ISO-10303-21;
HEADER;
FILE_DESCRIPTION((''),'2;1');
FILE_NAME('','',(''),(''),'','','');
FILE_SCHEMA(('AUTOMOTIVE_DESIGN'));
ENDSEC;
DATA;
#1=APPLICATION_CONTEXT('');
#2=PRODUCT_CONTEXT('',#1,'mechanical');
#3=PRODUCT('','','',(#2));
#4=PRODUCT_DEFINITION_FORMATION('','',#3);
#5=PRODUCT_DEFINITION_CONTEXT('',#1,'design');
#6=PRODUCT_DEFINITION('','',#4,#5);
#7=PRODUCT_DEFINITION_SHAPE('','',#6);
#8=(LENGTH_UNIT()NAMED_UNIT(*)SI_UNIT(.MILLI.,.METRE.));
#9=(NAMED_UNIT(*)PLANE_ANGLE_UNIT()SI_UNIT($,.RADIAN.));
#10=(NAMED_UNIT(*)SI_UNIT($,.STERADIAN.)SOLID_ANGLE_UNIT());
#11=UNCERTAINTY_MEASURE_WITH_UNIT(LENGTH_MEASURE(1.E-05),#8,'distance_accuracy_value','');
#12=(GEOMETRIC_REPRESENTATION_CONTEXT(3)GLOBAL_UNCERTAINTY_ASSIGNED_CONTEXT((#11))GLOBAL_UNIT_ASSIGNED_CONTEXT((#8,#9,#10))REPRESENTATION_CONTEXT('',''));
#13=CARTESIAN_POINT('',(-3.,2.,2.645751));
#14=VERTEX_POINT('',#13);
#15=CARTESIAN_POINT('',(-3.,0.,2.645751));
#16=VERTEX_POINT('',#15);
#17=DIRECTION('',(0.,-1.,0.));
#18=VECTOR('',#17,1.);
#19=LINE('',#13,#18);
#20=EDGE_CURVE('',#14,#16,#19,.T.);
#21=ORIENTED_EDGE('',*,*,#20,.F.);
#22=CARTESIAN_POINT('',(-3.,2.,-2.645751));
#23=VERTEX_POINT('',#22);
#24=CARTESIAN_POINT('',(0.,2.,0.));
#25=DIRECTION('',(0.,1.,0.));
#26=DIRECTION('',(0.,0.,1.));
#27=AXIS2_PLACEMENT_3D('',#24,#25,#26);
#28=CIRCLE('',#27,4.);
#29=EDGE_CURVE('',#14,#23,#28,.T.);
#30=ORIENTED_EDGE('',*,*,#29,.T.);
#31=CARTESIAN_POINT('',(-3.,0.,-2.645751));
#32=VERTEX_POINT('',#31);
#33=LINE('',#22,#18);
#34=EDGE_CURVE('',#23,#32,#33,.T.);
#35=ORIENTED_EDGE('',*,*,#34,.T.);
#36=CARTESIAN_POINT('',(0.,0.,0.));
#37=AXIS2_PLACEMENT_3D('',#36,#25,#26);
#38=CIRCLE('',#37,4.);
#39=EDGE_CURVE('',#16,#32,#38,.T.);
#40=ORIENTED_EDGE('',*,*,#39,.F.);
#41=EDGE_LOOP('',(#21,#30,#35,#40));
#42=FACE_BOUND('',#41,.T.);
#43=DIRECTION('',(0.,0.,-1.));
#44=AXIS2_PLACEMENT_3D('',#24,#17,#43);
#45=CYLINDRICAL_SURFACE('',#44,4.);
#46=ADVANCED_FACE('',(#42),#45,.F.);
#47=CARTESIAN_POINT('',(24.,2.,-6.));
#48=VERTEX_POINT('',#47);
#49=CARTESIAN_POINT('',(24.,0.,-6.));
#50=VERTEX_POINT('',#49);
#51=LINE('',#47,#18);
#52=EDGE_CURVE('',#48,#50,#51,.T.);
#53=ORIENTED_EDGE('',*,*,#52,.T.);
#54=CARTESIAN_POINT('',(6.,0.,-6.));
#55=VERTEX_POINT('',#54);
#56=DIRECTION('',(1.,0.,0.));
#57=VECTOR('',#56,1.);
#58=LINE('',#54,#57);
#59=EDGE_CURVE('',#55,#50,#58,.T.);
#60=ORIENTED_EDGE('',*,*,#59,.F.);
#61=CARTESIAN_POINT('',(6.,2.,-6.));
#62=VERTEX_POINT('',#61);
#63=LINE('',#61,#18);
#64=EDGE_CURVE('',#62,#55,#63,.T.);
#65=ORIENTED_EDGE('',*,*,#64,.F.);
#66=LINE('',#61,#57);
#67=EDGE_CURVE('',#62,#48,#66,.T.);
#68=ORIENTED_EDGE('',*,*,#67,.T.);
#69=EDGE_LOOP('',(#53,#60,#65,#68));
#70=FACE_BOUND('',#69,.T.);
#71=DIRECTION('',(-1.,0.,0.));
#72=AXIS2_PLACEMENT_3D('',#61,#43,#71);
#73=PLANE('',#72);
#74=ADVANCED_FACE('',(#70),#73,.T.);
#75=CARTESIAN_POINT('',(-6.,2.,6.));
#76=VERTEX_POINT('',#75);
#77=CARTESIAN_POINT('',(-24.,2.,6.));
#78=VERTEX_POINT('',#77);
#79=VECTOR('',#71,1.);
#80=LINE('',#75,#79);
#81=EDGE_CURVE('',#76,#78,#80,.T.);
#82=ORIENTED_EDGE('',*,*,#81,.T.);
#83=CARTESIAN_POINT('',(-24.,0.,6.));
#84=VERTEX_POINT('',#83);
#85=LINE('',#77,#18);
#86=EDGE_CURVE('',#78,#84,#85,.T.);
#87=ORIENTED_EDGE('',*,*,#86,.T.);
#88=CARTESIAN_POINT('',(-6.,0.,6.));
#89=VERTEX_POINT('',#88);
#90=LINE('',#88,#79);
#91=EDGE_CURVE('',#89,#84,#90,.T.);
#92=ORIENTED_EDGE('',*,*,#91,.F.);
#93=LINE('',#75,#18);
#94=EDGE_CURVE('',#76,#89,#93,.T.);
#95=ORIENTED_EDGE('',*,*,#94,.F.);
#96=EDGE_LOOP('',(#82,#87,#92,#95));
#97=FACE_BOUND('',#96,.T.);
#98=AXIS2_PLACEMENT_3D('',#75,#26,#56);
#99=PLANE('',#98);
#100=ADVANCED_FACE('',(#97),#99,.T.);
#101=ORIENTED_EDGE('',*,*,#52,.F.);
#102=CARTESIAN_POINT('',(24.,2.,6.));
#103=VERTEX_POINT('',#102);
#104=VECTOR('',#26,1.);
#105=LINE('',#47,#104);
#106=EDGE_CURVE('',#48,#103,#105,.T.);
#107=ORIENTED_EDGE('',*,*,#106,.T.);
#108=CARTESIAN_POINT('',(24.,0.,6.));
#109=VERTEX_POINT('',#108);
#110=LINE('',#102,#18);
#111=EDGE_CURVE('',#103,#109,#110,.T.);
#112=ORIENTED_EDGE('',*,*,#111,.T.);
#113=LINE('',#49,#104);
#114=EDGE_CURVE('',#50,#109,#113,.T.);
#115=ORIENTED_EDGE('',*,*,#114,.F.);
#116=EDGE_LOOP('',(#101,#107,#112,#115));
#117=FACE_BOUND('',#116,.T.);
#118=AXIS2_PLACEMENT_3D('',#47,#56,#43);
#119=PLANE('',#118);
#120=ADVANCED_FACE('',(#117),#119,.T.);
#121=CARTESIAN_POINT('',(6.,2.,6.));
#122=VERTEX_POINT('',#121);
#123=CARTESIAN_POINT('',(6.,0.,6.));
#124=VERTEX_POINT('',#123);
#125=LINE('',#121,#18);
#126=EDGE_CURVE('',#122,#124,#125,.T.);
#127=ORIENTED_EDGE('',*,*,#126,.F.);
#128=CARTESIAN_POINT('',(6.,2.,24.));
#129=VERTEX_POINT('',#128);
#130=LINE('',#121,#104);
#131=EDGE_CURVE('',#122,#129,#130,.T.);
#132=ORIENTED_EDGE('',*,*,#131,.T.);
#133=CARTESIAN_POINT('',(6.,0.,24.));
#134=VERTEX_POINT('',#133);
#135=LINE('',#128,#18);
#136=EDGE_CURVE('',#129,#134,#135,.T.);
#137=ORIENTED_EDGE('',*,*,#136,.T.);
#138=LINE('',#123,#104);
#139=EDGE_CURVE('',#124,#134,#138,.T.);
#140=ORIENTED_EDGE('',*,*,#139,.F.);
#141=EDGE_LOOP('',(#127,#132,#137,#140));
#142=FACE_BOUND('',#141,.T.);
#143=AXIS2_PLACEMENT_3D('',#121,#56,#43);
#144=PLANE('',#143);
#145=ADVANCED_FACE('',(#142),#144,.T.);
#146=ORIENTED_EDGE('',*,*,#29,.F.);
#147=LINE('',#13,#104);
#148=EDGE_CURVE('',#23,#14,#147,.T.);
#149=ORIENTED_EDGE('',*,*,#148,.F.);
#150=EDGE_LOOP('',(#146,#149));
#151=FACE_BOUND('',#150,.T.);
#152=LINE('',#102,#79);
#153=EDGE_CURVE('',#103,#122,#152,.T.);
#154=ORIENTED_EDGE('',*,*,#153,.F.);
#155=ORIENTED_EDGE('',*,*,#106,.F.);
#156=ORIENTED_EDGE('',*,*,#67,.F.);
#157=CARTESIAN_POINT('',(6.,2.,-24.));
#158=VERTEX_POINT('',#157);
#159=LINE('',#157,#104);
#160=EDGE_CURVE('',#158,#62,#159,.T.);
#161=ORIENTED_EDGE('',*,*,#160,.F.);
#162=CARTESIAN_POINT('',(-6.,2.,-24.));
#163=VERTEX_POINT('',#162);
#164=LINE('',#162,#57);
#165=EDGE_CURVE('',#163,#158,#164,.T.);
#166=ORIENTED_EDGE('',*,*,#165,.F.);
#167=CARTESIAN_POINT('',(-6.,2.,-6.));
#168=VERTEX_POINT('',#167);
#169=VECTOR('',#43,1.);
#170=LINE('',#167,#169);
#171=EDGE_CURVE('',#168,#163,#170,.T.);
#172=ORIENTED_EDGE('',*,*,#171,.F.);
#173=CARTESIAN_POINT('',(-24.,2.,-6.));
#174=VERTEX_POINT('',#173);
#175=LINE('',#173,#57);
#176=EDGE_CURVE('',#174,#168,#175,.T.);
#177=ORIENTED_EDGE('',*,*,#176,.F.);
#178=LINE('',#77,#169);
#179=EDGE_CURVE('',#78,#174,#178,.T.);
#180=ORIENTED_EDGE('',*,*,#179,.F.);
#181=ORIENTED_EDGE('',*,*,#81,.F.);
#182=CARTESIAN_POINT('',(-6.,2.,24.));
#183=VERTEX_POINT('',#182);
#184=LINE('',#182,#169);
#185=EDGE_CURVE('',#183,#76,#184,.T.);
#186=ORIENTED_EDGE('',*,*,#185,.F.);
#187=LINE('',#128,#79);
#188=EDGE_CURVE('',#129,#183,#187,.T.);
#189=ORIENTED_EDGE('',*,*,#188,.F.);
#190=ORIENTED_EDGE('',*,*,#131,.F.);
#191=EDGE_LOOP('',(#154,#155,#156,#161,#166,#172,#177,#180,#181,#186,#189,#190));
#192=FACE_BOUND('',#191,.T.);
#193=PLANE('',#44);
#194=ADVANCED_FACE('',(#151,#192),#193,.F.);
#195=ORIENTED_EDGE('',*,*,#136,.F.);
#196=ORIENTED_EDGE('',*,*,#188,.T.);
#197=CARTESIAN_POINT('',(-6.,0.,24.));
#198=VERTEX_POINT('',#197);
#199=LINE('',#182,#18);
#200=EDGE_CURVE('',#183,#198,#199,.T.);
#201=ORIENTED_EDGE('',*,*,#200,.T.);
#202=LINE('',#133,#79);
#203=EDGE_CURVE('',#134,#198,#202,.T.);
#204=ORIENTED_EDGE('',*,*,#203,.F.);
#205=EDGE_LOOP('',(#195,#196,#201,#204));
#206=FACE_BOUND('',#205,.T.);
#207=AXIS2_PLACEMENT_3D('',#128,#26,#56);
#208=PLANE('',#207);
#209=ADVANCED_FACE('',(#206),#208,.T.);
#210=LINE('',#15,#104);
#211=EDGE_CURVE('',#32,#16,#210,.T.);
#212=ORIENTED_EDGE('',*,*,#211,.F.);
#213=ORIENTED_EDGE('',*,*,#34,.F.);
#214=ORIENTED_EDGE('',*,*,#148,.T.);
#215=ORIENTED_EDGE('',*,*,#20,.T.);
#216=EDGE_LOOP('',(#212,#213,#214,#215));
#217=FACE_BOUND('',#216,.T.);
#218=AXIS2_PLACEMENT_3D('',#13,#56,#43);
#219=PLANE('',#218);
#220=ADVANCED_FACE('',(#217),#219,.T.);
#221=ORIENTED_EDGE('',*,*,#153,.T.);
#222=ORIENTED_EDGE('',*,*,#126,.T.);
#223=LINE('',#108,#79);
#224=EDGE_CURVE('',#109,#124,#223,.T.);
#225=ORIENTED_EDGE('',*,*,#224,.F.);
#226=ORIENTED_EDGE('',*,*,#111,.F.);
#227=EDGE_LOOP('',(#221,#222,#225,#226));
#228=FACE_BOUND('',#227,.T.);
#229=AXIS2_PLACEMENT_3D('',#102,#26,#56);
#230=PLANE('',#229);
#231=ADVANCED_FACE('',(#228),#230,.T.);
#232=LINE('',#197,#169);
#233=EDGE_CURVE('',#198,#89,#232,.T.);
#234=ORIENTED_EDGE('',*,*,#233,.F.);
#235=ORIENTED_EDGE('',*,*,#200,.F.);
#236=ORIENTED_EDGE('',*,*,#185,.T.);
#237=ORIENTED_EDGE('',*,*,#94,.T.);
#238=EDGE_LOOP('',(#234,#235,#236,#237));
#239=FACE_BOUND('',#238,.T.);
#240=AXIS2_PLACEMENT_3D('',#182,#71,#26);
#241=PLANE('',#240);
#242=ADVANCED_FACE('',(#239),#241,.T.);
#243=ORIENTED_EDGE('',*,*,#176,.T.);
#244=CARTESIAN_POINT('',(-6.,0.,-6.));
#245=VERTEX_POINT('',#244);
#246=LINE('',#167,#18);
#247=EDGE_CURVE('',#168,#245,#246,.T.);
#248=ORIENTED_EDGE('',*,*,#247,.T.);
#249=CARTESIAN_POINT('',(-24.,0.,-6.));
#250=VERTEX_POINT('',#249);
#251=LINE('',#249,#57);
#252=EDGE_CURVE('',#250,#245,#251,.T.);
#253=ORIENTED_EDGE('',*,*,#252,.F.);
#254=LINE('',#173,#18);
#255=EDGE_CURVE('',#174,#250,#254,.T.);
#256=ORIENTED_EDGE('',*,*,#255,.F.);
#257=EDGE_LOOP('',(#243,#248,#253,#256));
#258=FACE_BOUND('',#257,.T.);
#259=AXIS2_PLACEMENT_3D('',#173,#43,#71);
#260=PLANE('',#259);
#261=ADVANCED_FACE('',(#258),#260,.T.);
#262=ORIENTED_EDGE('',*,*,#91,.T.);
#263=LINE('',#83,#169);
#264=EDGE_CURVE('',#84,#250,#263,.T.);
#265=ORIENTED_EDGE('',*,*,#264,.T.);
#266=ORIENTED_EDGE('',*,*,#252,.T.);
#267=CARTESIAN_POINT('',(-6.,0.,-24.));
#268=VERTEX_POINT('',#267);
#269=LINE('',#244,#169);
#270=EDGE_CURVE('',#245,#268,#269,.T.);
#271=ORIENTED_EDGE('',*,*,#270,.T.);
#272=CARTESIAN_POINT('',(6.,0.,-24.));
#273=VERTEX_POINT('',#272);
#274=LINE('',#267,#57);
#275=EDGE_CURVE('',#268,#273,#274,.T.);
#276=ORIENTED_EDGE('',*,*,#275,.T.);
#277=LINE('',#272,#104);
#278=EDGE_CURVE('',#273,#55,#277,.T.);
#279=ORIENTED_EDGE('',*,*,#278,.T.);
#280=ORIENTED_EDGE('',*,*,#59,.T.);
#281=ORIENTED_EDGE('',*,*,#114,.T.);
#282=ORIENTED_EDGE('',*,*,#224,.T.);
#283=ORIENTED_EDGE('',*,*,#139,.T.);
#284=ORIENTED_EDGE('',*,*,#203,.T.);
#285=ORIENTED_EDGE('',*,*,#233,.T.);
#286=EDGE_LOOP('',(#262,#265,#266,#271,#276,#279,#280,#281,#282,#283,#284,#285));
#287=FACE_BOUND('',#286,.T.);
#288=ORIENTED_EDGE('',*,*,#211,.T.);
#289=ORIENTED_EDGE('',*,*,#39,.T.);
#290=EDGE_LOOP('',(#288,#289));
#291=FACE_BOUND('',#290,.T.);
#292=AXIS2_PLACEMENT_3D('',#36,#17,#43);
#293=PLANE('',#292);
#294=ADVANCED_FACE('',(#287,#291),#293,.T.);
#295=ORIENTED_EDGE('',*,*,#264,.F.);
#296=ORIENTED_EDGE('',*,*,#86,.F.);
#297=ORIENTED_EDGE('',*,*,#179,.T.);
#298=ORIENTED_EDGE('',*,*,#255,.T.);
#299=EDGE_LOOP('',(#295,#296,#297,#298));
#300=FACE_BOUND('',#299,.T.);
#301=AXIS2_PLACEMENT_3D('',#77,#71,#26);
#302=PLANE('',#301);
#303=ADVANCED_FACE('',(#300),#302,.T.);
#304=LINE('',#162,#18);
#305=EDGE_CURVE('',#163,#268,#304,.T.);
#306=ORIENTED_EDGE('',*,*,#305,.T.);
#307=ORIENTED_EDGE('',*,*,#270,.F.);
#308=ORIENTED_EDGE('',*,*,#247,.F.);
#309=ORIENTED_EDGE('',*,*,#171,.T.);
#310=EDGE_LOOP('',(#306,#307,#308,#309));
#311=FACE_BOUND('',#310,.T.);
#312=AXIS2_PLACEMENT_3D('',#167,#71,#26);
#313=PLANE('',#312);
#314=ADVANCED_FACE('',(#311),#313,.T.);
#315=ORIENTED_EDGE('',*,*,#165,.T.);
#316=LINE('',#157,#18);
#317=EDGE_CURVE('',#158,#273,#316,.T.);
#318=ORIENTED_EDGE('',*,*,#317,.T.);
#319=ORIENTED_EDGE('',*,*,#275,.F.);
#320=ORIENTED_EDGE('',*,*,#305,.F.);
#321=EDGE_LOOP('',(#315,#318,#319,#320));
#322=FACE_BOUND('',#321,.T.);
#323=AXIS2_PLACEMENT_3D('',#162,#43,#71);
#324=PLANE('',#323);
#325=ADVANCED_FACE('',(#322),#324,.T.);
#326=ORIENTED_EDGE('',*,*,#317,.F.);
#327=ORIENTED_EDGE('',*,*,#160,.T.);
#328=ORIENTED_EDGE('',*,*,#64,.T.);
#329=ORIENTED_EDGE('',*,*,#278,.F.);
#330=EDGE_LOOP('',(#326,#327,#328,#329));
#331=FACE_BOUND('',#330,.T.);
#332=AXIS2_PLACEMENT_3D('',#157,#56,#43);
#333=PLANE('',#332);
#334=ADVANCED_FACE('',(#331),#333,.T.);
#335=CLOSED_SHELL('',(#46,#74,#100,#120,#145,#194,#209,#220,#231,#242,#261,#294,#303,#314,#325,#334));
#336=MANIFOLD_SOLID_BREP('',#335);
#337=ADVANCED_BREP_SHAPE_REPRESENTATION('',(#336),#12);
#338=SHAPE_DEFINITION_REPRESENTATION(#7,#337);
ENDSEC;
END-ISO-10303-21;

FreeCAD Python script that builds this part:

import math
import FreeCAD as App
import Part
import Sketcher


def add_polygon(sketch, points):
    """Adds a closed chain of lines whose ends are joined by coincident constraints."""
    first, n = sketch.GeometryCount, len(points)
    for a, b in zip(points, points[1:] + points[:1]):
        sketch.addGeometry(Part.LineSegment(App.Vector(*a, 0), App.Vector(*b, 0)), False)
    for i in range(n):
        sketch.addConstraint(Sketcher.Constraint("Coincident", first + i, 2, first + (i + 1) % n, 1))

doc = App.newDocument("Part")
body = doc.addObject("PartDesign::Body", "Body")

# Sketch on XZ plane
sketch1 = body.newObject("Sketcher::SketchObject", "Sketch")
sketch1.AttachmentSupport = (doc.getObject("XZ_Plane"), [""])
sketch1.MapMode = "FlatFace"
add_polygon(sketch1, [(-6, -24), (-6, -6), (-24, -6), (-24, 6), (-6, 6), (-6, 24), (6, 24), (6, 6), (24, 6), (24, -6), (6, -6), (6, -24)])  # lines 0-11
sketch1.addConstraint([
    Sketcher.Constraint("Vertical", 0),
    Sketcher.Constraint("Horizontal", 1),
    Sketcher.Constraint("Vertical", 2),
    Sketcher.Constraint("Horizontal", 3),
    Sketcher.Constraint("Vertical", 4),
    Sketcher.Constraint("Horizontal", 5),
    Sketcher.Constraint("Vertical", 6),
    Sketcher.Constraint("Horizontal", 7),
    Sketcher.Constraint("Vertical", 8),
    Sketcher.Constraint("Horizontal", 9),
    Sketcher.Constraint("Vertical", 10),
    Sketcher.Constraint("Horizontal", 11),
    Sketcher.Constraint("Symmetric", 0, 2, 6, 2, -1, 1),
    Sketcher.Constraint("Symmetric", 2, 2, 8, 2, -1, 1),
    Sketcher.Constraint("Symmetric", 4, 2, 10, 2, -1, 1),
    Sketcher.Constraint("Symmetric", 3, 2, 6, 2, -2),
    Sketcher.Constraint("Equal", 9, 0),
    Sketcher.Constraint("Equal", 11, 2),
    Sketcher.Constraint("DistanceX", 1, 2, 1, 1, 18.0),
    Sketcher.Constraint("DistanceX", 5, 1, 5, 2, 12.0),
])
pad1 = body.newObject("PartDesign::Pad", "Pad")
pad1.Profile = sketch1
pad1.Length = 2
pad1.Reversed = True

# Sketch on XZ plane
sketch2 = body.newObject("Sketcher::SketchObject", "Sketch001")
sketch2.AttachmentSupport = (doc.getObject("XZ_Plane"), [""])
sketch2.MapMode = "FlatFace"
sketch2.addGeometry([
    Part.LineSegment(App.Vector(-3, -2.6, 0), App.Vector(-3, 2.6, 0)),
    Part.ArcOfCircle(Part.Circle(App.Vector(0, 0, 0), App.Vector(0, 0, 1), 4), math.radians(-139), math.radians(139)),
], False)
sketch2.addConstraint([
    Sketcher.Constraint("Coincident", 0, 1, 1, 1),
    Sketcher.Constraint("Coincident", 1, 2, 0, 2),
    Sketcher.Constraint("Vertical", 0),
    Sketcher.Constraint("Coincident", 1, 3, -1, 1),
    Sketcher.Constraint("Radius", 1, 4.0),
    Sketcher.Constraint("DistanceX", 0, 1, -1, 1, 3.0),
])
pocket1 = body.newObject("PartDesign::Pocket", "Pocket")
pocket1.Profile = sketch2
pocket1.Type = "ThroughAll"

doc.recompute()
